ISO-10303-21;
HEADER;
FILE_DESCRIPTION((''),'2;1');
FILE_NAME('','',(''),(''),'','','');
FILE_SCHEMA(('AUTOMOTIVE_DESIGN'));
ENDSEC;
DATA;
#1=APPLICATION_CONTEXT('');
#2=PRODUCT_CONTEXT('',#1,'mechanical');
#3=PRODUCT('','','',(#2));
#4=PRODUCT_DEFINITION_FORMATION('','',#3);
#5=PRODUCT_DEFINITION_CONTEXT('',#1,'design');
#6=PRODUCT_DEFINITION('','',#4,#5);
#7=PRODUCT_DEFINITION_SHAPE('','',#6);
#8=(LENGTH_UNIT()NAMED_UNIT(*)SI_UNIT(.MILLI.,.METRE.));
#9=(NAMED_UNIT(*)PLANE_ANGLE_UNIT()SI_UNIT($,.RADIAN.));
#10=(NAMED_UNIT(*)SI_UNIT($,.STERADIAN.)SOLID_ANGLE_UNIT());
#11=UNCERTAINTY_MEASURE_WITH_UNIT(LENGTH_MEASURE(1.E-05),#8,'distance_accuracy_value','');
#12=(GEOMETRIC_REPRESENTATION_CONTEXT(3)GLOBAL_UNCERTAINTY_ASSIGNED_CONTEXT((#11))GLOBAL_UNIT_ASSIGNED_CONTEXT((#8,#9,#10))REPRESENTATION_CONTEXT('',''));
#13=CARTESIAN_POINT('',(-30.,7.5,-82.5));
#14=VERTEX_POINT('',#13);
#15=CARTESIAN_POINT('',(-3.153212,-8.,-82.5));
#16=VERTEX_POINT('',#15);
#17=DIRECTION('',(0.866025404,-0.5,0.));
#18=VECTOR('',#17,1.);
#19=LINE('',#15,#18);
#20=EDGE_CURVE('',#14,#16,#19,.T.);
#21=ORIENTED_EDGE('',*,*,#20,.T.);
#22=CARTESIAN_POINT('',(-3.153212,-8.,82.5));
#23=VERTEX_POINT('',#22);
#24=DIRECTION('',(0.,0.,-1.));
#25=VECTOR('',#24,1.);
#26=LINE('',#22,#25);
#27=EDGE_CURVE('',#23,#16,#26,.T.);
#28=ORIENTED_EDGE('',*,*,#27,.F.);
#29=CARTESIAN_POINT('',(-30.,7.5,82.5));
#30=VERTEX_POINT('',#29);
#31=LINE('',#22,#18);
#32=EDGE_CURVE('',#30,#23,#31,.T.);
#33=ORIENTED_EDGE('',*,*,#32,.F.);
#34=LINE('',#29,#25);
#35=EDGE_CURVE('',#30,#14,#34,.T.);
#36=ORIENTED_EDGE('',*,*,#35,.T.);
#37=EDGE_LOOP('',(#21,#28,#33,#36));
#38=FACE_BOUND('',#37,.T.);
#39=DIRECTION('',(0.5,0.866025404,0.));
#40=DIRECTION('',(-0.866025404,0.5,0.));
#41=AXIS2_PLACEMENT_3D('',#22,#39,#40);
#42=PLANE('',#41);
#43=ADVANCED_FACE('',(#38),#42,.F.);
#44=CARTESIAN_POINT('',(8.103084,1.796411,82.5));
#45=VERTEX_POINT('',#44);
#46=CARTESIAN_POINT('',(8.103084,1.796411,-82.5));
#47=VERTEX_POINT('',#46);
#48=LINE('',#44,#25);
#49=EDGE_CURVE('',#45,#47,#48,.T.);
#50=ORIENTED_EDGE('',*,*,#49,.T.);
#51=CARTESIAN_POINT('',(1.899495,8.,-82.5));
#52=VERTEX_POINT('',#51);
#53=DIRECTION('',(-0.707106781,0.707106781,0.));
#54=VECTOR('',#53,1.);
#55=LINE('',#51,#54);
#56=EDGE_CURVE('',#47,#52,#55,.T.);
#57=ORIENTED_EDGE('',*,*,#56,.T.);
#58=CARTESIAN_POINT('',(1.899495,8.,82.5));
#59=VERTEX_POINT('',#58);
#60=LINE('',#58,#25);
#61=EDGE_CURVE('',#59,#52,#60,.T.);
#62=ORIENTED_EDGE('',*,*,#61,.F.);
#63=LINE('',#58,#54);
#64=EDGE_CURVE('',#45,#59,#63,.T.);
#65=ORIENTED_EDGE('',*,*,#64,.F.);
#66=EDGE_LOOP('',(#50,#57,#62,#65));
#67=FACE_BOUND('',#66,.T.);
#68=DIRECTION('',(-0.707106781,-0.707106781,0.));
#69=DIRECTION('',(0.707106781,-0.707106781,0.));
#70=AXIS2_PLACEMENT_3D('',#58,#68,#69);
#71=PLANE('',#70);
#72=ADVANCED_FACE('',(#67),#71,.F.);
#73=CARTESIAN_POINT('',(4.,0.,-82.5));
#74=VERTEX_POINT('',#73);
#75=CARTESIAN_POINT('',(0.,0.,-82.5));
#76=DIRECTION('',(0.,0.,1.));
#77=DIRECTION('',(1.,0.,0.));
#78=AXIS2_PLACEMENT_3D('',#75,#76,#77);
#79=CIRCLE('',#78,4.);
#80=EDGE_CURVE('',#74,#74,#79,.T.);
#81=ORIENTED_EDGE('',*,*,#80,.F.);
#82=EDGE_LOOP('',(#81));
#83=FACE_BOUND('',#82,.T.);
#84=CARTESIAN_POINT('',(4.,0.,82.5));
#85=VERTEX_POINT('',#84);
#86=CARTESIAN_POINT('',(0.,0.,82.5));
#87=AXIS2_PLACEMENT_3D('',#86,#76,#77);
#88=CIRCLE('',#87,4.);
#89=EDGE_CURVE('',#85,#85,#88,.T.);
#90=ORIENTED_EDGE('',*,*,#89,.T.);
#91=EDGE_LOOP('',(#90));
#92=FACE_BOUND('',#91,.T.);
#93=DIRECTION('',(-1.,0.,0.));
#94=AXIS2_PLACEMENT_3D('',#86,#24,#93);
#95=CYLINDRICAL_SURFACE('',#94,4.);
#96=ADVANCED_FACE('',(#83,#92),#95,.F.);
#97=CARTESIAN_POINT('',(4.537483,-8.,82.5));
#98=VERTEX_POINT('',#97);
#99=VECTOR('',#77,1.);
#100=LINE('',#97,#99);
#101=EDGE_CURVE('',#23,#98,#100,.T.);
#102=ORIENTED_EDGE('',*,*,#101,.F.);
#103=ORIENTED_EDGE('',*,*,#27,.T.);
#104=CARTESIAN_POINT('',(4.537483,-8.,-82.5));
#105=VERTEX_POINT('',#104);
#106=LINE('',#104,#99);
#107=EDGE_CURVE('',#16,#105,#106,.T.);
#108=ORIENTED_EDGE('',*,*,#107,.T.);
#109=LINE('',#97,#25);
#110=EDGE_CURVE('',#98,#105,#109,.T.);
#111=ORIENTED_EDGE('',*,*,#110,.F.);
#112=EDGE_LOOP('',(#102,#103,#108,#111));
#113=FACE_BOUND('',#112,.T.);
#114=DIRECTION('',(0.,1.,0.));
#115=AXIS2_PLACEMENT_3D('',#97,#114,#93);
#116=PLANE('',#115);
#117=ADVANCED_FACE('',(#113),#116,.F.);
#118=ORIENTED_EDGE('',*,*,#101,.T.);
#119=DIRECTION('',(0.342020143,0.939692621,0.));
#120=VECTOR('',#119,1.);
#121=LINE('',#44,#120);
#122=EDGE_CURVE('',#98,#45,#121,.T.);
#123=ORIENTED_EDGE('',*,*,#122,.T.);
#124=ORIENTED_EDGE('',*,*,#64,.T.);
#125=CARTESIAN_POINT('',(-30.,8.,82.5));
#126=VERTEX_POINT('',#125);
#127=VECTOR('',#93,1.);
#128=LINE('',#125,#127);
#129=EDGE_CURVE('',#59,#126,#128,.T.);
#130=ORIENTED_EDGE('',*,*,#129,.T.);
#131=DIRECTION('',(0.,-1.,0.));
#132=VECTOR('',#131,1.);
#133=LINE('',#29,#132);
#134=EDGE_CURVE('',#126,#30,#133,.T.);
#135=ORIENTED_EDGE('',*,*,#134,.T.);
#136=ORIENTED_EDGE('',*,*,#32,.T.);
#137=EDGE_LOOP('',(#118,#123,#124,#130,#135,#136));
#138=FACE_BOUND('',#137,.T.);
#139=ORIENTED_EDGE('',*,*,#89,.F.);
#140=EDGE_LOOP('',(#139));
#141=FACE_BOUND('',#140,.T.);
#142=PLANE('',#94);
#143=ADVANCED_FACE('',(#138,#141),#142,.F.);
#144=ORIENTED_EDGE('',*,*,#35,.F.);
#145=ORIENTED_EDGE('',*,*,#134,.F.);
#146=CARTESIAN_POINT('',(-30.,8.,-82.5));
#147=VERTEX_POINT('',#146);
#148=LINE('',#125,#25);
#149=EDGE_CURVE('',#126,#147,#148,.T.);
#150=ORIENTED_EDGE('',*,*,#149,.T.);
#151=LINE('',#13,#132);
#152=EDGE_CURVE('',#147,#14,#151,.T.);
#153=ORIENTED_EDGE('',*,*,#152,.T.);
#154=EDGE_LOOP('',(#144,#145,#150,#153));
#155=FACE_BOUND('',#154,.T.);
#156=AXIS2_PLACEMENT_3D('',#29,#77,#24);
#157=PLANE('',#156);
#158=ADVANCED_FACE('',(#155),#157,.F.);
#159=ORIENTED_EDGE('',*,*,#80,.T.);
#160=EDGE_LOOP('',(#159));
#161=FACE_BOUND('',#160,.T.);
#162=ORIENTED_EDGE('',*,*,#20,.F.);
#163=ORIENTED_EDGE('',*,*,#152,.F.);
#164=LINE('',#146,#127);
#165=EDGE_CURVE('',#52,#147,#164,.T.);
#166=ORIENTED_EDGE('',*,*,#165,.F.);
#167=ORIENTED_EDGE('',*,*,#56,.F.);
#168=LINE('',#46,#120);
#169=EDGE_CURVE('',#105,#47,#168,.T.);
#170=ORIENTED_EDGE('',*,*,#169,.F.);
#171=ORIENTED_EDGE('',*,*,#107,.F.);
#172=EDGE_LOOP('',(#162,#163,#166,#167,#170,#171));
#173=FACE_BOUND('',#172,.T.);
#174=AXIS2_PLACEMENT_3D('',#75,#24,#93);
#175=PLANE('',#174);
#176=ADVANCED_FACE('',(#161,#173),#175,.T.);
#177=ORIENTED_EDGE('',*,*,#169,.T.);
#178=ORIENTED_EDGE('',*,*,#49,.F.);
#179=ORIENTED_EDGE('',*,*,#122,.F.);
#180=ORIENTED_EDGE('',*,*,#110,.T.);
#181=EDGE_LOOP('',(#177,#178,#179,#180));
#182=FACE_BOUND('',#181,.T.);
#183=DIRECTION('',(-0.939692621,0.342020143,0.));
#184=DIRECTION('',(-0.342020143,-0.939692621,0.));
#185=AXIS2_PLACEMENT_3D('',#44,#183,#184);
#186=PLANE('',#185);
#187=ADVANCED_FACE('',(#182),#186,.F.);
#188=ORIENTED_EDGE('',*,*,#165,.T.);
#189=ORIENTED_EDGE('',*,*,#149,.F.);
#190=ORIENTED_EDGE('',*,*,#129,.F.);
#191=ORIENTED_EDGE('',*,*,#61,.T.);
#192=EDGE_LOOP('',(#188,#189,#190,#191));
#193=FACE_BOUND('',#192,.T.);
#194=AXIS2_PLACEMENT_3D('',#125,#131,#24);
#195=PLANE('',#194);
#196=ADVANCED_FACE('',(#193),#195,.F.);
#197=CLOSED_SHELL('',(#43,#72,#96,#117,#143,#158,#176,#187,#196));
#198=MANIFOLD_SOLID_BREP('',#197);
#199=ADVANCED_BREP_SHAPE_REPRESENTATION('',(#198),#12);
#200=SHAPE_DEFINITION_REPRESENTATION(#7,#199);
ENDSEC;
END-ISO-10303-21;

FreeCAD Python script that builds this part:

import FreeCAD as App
import Part
import Sketcher
Q = App.Units.Quantity

doc = App.newDocument("Part")
params = doc.addObject("Spreadsheet::Sheet", "Params")
for row, (alias, value) in enumerate([
    ("sketch1_diameter", "8 mm"),
    ("sketch1_length", "31 mm"),
    ("sketch1_height", "0.5 mm"),
    ("pad1_length", "165 mm"),
], start=1):
    params.set(f"A{row}", alias)
    params.set(f"B{row}", "=" + value)
    params.setAlias(f"B{row}", alias)

body = doc.addObject("PartDesign::Body", "Body")

# Sketch on XY plane
sketch1 = body.newObject("Sketcher::SketchObject", "Sketch")
sketch1.AttachmentSupport = (doc.getObject("XY_Plane"), [""])
sketch1.MapMode = "FlatFace"
sketch1.addGeometry([
    Part.LineSegment(App.Vector(1.9, 8, 0), App.Vector(-30, 8, 0)),  # 0
    Part.LineSegment(App.Vector(-30, 8, 0), App.Vector(-30, 7.5, 0)),  # 1
    Part.LineSegment(App.Vector(-30, 7.5, 0), App.Vector(-3.2, -8, 0)),  # 2
    Part.LineSegment(App.Vector(-3.2, -8, 0), App.Vector(4.5, -8, 0)),  # 3
    Part.LineSegment(App.Vector(4.5, -8, 0), App.Vector(8.1, 1.8, 0)),  # 4
    Part.LineSegment(App.Vector(8.1, 1.8, 0), App.Vector(1.9, 8, 0)),  # 5
    Part.Circle(App.Vector(0, 0, 0), App.Vector(0, 0, 1), 4),  # 6
], False)
sketch1.addConstraint([
    Sketcher.Constraint("Coincident", 0, 2, 1, 1),
    Sketcher.Constraint("Coincident", 1, 2, 2, 1),
    Sketcher.Constraint("Coincident", 2, 2, 3, 1),
    Sketcher.Constraint("Coincident", 3, 2, 4, 1),
    Sketcher.Constraint("Coincident", 4, 2, 5, 1),
    Sketcher.Constraint("Coincident", 5, 2, 0, 1),
    Sketcher.Constraint("Horizontal", 0),
    Sketcher.Constraint("Vertical", 1),
    Sketcher.Constraint("Horizontal", 3),
    Sketcher.Constraint("Coincident", 6, 3, -1, 1),
    Sketcher.Constraint("Diameter", 6, Q("8 mm")),
    Sketcher.Constraint("Angle", 2, Q("-30 deg")),
    Sketcher.Constraint("Angle", 4, Q("70 deg")),
    Sketcher.Constraint("Angle", 5, Q("135 deg")),
    Sketcher.Constraint("Distance", 2, Q("31 mm")),
    Sketcher.Constraint("DistanceY", 1, 2, 1, 1, Q("0.5 mm")),
    Sketcher.Constraint("DistanceX", 0, 2, -1, 1, Q("30 mm")),
    Sketcher.Constraint("DistanceY", -1, 1, 0, 2, Q("8 mm")),
    Sketcher.Constraint("Distance", 5, Q("8.7732 mm")),
    Sketcher.Constraint("DistanceX", 0, 2, 0, 1, Q("31.899495 mm")),
])
sketch1.setExpression("Constraints[10]", "Params.sketch1_diameter")
sketch1.setExpression("Constraints[14]", "Params.sketch1_length")
sketch1.setExpression("Constraints[15]", "Params.sketch1_height")
pad1 = body.newObject("PartDesign::Pad", "Pad")
pad1.Profile = sketch1
pad1.setExpression("Length", "Params.pad1_length")
pad1.Midplane = True

doc.recompute()
